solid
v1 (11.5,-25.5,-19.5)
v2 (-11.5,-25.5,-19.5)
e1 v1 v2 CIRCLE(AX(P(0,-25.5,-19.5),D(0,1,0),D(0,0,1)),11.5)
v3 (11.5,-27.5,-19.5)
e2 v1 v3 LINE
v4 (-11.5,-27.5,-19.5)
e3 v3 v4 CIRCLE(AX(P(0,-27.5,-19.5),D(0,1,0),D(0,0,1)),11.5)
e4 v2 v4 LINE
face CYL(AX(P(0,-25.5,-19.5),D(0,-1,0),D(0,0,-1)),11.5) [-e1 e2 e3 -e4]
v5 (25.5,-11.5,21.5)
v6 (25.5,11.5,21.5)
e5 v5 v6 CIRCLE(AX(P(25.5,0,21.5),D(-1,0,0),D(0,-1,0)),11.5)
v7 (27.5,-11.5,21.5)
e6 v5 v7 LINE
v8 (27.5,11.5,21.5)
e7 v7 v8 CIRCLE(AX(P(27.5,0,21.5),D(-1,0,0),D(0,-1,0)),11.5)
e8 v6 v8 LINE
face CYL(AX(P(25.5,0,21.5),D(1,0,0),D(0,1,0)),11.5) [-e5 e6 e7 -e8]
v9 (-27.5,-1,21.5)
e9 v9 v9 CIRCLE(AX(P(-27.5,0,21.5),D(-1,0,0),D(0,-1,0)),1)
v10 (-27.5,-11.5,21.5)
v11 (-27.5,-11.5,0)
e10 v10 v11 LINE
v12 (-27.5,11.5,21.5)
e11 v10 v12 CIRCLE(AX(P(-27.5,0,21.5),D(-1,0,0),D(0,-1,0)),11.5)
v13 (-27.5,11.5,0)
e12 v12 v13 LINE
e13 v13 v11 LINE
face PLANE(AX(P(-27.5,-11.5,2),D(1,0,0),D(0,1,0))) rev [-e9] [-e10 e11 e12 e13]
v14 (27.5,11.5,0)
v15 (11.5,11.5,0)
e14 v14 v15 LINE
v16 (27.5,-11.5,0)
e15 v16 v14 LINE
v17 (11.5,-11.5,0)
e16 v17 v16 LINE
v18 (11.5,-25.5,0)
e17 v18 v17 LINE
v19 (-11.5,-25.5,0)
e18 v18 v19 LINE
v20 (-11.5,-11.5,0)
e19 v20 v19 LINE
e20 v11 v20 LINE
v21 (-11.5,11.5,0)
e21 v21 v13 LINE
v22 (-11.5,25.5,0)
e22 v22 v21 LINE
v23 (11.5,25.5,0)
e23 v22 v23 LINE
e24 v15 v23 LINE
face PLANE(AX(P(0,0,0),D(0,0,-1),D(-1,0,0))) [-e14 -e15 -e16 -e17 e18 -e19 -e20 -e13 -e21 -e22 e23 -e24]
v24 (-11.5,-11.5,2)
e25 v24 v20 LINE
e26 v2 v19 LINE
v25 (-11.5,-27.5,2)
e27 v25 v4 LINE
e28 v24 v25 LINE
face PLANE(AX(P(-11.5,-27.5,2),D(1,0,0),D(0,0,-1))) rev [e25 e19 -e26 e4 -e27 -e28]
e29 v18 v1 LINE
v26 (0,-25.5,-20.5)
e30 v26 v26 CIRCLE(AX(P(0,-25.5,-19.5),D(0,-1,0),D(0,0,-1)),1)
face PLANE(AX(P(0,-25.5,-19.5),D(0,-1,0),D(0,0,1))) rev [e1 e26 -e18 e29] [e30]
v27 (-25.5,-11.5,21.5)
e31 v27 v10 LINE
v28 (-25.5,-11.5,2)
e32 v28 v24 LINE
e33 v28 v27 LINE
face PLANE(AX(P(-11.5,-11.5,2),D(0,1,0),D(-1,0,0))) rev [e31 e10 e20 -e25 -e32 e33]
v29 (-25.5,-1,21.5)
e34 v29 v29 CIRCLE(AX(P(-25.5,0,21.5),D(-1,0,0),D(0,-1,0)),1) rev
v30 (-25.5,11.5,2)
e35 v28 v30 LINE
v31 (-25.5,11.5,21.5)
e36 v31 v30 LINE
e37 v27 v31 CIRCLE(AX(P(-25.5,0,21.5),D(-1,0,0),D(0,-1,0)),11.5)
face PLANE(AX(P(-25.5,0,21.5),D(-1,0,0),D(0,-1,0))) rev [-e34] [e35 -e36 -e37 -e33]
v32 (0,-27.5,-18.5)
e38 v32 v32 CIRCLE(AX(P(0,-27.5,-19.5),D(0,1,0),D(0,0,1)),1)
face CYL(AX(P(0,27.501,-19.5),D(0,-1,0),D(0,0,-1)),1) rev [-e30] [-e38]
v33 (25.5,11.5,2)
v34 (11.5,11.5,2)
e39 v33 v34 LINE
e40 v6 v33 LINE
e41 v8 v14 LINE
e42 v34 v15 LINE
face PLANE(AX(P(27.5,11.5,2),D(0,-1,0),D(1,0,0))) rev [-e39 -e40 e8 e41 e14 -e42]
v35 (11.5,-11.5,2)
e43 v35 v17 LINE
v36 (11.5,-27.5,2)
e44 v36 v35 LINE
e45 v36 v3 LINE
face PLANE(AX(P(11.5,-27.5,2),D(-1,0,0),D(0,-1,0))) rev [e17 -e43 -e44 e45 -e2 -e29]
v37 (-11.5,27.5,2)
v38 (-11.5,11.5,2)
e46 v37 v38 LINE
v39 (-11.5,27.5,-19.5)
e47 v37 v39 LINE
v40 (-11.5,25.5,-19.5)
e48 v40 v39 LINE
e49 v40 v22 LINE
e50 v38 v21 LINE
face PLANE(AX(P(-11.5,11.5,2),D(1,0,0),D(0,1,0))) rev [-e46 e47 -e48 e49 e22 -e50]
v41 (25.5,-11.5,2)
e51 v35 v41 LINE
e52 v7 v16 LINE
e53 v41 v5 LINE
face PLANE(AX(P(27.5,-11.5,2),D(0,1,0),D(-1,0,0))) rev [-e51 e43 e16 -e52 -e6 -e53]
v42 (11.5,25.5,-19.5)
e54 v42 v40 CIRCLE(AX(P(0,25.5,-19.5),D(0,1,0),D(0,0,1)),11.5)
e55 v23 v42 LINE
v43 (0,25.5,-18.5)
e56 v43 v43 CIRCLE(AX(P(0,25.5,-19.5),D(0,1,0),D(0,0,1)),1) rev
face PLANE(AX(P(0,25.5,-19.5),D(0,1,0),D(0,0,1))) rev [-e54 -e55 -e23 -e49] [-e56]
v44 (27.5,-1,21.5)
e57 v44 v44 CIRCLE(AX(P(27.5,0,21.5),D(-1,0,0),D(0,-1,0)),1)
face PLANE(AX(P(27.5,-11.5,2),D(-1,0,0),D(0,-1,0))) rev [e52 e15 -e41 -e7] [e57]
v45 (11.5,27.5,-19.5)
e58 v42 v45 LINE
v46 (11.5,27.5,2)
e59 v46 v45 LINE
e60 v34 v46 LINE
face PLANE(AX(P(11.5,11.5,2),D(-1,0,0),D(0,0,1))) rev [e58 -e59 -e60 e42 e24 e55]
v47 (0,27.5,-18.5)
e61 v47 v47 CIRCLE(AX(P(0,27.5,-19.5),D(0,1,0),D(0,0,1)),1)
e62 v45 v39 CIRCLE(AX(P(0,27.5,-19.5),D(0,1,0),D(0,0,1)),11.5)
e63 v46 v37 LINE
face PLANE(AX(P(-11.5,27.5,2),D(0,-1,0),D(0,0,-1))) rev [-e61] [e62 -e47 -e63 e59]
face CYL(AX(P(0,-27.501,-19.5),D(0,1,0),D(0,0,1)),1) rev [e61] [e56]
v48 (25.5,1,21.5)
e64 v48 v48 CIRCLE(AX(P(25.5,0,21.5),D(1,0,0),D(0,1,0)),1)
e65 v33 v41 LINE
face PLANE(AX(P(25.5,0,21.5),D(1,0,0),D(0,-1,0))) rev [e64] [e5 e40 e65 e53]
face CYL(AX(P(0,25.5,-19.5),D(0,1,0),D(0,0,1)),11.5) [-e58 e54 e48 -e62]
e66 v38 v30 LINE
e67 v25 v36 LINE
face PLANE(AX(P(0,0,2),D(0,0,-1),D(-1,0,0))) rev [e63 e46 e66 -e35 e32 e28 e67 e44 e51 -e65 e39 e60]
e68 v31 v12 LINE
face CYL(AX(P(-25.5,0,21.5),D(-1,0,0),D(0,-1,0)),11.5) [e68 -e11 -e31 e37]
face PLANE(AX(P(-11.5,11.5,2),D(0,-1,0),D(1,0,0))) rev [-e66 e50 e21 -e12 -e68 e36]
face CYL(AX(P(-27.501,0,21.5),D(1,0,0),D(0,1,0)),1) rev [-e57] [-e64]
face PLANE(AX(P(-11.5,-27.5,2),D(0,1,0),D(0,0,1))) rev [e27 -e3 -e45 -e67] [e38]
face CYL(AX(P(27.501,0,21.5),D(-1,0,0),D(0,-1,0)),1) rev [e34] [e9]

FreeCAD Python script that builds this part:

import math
import FreeCAD as App
import Part
import Sketcher

V = App.Vector


def add_polygon(sketch, points):
    """Adds a closed chain of lines whose ends are joined by coincident constraints."""
    first, n = sketch.GeometryCount, len(points)
    for a, b in zip(points, points[1:] + points[:1]):
        sketch.addGeometry(Part.LineSegment(App.Vector(*a, 0), App.Vector(*b, 0)), False)
    for i in range(n):
        sketch.addConstraint(Sketcher.Constraint("Coincident", first + i, 2, first + (i + 1) % n, 1))

doc = App.newDocument("Part")
body = doc.addObject("PartDesign::Body", "Body")

# Sketch on XY plane
sketch1 = body.newObject("Sketcher::SketchObject", "Sketch")
sketch1.AttachmentSupport = (doc.getObject("XY_Plane"), [""])
sketch1.MapMode = "FlatFace"
add_polygon(sketch1, [(28, -12), (28, 12), (12, 12), (12, 28), (-12, 28), (-12, 12), (-28, 12), (-28, -12), (-12, -12), (-12, -28), (12, -28), (12, -12)])  # lines 0-11
sketch1.addConstraint([
    Sketcher.Constraint("Vertical", 0),
    Sketcher.Constraint("Horizontal", 1),
    Sketcher.Constraint("Vertical", 2),
    Sketcher.Constraint("Horizontal", 3),
    Sketcher.Constraint("Vertical", 4),
    Sketcher.Constraint("Horizontal", 5),
    Sketcher.Constraint("Vertical", 6),
    Sketcher.Constraint("Horizontal", 7),
    Sketcher.Constraint("Vertical", 8),
    Sketcher.Constraint("Horizontal", 9),
    Sketcher.Constraint("Vertical", 10),
    Sketcher.Constraint("Horizontal", 11),
    Sketcher.Constraint("Symmetric", 0, 2, 6, 2, -1, 1),
    Sketcher.Constraint("Symmetric", 2, 2, 8, 2, -1, 1),
    Sketcher.Constraint("Symmetric", 4, 2, 10, 2, -1, 1),
    Sketcher.Constraint("Symmetric", 1, 2, 4, 2, -2),
    Sketcher.Constraint("Equal", 9, 0),
    Sketcher.Constraint("Equal", 11, 2),
    Sketcher.Constraint("DistanceX", 1, 2, 1, 1, 16.0),
    Sketcher.Constraint("DistanceX", 3, 2, 3, 1, 23.0),
])
pad1 = body.newObject("PartDesign::Pad", "Pad")
pad1.Profile = sketch1
pad1.Length = 2

# Sketch on XZ plane
sketch2 = body.newObject("Sketcher::SketchObject", "Sketch001")
sketch2.AttachmentSupport = (doc.getObject("XZ_Plane"), [""])
sketch2.MapMode = "FlatFace"
sketch2.AttachmentOffset = App.Placement(V(0, 0, -27.5), App.Rotation())
sketch2.addGeometry([
    Part.LineSegment(V(-12, 2, 0), V(12, 2, 0)),
    Part.LineSegment(V(12, 2, 0), V(12, -20, 0)),
    Part.ArcOfCircle(Part.Circle(V(0, -20, 0), V(0, 0, 1), 12), math.radians(180), math.radians(360)),
    Part.LineSegment(V(-12, -20, 0), V(-12, 2, 0)),
], False)
sketch2.addConstraint([
    Sketcher.Constraint("Coincident", 0, 2, 1, 1),
    Sketcher.Constraint("Tangent", 1, 2, 2, 2),
    Sketcher.Constraint("Tangent", 2, 1, 3, 1),
    Sketcher.Constraint("Coincident", 3, 2, 0, 1),
    Sketcher.Constraint("Horizontal", 0),
    Sketcher.Constraint("Vertical", 1),
    Sketcher.Constraint("Vertical", 3),
    Sketcher.Constraint("PointOnObject", 2, 3, -2),
    Sketcher.Constraint("Radius", 2, 11.5),
    Sketcher.Constraint("DistanceY", 1, 2, 1, 1, 21.5),
    Sketcher.Constraint("DistanceY", -1, 1, 0, 2, 2.0),
])
pad2 = body.newObject("PartDesign::Pad", "Pad001")
pad2.Profile = sketch2
pad2.Length = 2

# Sketch on XZ plane
sketch3 = body.newObject("Sketcher::SketchObject", "Sketch002")
sketch3.AttachmentSupport = (doc.getObject("XZ_Plane"), [""])
sketch3.MapMode = "FlatFace"
sketch3.AttachmentOffset = App.Placement(V(0, 0, -27.5), App.Rotation())
sketch3.addGeometry(Part.Circle(V(0, -19.5, 0), V(0, 0, 1), 1), False)
sketch3.addConstraint([
    Sketcher.Constraint("PointOnObject", 0, 3, -2),
    Sketcher.Constraint("Diameter", 0, 2.0),
    Sketcher.Constraint("DistanceY", 0, 3, -1, 1, 19.5),
])
pocket1 = body.newObject("PartDesign::Pocket", "Pocket")
pocket1.Profile = sketch3
pocket1.Length = 2
pocket1.Reversed = True
doc.recompute()

mirrored = body.newObject("PartDesign::Mirrored", "Mirrored")
mirrored.Originals = [pad2, pocket1]
mirrored.MirrorPlane = (doc.getObject("XZ_Plane"), [""])
body.Tip = mirrored

# Sketch on YZ plane
sketch4 = body.newObject("Sketcher::SketchObject", "Sketch003")
sketch4.AttachmentSupport = (doc.getObject("YZ_Plane"), [""])
sketch4.MapMode = "FlatFace"
sketch4.AttachmentOffset = App.Placement(V(0, 0, -27.5), App.Rotation())
sketch4.addGeometry([
    Part.LineSegment(V(12, 22, 0), V(12, 0, 0)),
    Part.LineSegment(V(12, 0, 0), V(-12, 0, 0)),
    Part.LineSegment(V(-12, 0, 0), V(-12, 22, 0)),
    Part.ArcOfCircle(Part.Circle(V(0, 22, 0), V(0, 0, 1), 12), math.radians(0), math.radians(180)),
], False)
sketch4.addConstraint([
    Sketcher.Constraint("Coincident", 0, 2, 1, 1),
    Sketcher.Constraint("Coincident", 1, 2, 2, 1),
    Sketcher.Constraint("Tangent", 2, 2, 3, 2),
    Sketcher.Constraint("Tangent", 3, 1, 0, 1),
    Sketcher.Constraint("Vertical", 0),
    Sketcher.Constraint("Horizontal", 1),
    Sketcher.Constraint("Vertical", 2),
    Sketcher.Constraint("Symmetric", 0, 2, 1, 2, -1, 1),
    Sketcher.Constraint("Radius", 3, 11.5),
    Sketcher.Constraint("DistanceY", 0, 2, 0, 1, 21.5),
])
pad3 = body.newObject("PartDesign::Pad", "Pad002")
pad3.Profile = sketch4
pad3.Length = 2

# Sketch on YZ plane
sketch5 = body.newObject("Sketcher::SketchObject", "Sketch004")
sketch5.AttachmentSupport = (doc.getObject("YZ_Plane"), [""])
sketch5.MapMode = "FlatFace"
sketch5.AttachmentOffset = App.Placement(V(0, 0, -27.5), App.Rotation())
sketch5.addGeometry(Part.Circle(V(0, 21.5, 0), V(0, 0, 1), 1), False)
sketch5.addConstraint([
    Sketcher.Constraint("PointOnObject", 0, 3, -2),
    Sketcher.Constraint("Diameter", 0, 2.0),
    Sketcher.Constraint("DistanceY", -1, 1, 0, 3, 21.5),
])
pocket2 = body.newObject("PartDesign::Pocket", "Pocket001")
pocket2.Profile = sketch5
pocket2.Length = 2
pocket2.Reversed = True
doc.recompute()

mirrored2 = body.newObject("PartDesign::Mirrored", "Mirrored001")
mirrored2.Originals = [pad3, pocket2]
mirrored2.MirrorPlane = (doc.getObject("YZ_Plane"), [""])
body.Tip = mirrored2

doc.recompute()
